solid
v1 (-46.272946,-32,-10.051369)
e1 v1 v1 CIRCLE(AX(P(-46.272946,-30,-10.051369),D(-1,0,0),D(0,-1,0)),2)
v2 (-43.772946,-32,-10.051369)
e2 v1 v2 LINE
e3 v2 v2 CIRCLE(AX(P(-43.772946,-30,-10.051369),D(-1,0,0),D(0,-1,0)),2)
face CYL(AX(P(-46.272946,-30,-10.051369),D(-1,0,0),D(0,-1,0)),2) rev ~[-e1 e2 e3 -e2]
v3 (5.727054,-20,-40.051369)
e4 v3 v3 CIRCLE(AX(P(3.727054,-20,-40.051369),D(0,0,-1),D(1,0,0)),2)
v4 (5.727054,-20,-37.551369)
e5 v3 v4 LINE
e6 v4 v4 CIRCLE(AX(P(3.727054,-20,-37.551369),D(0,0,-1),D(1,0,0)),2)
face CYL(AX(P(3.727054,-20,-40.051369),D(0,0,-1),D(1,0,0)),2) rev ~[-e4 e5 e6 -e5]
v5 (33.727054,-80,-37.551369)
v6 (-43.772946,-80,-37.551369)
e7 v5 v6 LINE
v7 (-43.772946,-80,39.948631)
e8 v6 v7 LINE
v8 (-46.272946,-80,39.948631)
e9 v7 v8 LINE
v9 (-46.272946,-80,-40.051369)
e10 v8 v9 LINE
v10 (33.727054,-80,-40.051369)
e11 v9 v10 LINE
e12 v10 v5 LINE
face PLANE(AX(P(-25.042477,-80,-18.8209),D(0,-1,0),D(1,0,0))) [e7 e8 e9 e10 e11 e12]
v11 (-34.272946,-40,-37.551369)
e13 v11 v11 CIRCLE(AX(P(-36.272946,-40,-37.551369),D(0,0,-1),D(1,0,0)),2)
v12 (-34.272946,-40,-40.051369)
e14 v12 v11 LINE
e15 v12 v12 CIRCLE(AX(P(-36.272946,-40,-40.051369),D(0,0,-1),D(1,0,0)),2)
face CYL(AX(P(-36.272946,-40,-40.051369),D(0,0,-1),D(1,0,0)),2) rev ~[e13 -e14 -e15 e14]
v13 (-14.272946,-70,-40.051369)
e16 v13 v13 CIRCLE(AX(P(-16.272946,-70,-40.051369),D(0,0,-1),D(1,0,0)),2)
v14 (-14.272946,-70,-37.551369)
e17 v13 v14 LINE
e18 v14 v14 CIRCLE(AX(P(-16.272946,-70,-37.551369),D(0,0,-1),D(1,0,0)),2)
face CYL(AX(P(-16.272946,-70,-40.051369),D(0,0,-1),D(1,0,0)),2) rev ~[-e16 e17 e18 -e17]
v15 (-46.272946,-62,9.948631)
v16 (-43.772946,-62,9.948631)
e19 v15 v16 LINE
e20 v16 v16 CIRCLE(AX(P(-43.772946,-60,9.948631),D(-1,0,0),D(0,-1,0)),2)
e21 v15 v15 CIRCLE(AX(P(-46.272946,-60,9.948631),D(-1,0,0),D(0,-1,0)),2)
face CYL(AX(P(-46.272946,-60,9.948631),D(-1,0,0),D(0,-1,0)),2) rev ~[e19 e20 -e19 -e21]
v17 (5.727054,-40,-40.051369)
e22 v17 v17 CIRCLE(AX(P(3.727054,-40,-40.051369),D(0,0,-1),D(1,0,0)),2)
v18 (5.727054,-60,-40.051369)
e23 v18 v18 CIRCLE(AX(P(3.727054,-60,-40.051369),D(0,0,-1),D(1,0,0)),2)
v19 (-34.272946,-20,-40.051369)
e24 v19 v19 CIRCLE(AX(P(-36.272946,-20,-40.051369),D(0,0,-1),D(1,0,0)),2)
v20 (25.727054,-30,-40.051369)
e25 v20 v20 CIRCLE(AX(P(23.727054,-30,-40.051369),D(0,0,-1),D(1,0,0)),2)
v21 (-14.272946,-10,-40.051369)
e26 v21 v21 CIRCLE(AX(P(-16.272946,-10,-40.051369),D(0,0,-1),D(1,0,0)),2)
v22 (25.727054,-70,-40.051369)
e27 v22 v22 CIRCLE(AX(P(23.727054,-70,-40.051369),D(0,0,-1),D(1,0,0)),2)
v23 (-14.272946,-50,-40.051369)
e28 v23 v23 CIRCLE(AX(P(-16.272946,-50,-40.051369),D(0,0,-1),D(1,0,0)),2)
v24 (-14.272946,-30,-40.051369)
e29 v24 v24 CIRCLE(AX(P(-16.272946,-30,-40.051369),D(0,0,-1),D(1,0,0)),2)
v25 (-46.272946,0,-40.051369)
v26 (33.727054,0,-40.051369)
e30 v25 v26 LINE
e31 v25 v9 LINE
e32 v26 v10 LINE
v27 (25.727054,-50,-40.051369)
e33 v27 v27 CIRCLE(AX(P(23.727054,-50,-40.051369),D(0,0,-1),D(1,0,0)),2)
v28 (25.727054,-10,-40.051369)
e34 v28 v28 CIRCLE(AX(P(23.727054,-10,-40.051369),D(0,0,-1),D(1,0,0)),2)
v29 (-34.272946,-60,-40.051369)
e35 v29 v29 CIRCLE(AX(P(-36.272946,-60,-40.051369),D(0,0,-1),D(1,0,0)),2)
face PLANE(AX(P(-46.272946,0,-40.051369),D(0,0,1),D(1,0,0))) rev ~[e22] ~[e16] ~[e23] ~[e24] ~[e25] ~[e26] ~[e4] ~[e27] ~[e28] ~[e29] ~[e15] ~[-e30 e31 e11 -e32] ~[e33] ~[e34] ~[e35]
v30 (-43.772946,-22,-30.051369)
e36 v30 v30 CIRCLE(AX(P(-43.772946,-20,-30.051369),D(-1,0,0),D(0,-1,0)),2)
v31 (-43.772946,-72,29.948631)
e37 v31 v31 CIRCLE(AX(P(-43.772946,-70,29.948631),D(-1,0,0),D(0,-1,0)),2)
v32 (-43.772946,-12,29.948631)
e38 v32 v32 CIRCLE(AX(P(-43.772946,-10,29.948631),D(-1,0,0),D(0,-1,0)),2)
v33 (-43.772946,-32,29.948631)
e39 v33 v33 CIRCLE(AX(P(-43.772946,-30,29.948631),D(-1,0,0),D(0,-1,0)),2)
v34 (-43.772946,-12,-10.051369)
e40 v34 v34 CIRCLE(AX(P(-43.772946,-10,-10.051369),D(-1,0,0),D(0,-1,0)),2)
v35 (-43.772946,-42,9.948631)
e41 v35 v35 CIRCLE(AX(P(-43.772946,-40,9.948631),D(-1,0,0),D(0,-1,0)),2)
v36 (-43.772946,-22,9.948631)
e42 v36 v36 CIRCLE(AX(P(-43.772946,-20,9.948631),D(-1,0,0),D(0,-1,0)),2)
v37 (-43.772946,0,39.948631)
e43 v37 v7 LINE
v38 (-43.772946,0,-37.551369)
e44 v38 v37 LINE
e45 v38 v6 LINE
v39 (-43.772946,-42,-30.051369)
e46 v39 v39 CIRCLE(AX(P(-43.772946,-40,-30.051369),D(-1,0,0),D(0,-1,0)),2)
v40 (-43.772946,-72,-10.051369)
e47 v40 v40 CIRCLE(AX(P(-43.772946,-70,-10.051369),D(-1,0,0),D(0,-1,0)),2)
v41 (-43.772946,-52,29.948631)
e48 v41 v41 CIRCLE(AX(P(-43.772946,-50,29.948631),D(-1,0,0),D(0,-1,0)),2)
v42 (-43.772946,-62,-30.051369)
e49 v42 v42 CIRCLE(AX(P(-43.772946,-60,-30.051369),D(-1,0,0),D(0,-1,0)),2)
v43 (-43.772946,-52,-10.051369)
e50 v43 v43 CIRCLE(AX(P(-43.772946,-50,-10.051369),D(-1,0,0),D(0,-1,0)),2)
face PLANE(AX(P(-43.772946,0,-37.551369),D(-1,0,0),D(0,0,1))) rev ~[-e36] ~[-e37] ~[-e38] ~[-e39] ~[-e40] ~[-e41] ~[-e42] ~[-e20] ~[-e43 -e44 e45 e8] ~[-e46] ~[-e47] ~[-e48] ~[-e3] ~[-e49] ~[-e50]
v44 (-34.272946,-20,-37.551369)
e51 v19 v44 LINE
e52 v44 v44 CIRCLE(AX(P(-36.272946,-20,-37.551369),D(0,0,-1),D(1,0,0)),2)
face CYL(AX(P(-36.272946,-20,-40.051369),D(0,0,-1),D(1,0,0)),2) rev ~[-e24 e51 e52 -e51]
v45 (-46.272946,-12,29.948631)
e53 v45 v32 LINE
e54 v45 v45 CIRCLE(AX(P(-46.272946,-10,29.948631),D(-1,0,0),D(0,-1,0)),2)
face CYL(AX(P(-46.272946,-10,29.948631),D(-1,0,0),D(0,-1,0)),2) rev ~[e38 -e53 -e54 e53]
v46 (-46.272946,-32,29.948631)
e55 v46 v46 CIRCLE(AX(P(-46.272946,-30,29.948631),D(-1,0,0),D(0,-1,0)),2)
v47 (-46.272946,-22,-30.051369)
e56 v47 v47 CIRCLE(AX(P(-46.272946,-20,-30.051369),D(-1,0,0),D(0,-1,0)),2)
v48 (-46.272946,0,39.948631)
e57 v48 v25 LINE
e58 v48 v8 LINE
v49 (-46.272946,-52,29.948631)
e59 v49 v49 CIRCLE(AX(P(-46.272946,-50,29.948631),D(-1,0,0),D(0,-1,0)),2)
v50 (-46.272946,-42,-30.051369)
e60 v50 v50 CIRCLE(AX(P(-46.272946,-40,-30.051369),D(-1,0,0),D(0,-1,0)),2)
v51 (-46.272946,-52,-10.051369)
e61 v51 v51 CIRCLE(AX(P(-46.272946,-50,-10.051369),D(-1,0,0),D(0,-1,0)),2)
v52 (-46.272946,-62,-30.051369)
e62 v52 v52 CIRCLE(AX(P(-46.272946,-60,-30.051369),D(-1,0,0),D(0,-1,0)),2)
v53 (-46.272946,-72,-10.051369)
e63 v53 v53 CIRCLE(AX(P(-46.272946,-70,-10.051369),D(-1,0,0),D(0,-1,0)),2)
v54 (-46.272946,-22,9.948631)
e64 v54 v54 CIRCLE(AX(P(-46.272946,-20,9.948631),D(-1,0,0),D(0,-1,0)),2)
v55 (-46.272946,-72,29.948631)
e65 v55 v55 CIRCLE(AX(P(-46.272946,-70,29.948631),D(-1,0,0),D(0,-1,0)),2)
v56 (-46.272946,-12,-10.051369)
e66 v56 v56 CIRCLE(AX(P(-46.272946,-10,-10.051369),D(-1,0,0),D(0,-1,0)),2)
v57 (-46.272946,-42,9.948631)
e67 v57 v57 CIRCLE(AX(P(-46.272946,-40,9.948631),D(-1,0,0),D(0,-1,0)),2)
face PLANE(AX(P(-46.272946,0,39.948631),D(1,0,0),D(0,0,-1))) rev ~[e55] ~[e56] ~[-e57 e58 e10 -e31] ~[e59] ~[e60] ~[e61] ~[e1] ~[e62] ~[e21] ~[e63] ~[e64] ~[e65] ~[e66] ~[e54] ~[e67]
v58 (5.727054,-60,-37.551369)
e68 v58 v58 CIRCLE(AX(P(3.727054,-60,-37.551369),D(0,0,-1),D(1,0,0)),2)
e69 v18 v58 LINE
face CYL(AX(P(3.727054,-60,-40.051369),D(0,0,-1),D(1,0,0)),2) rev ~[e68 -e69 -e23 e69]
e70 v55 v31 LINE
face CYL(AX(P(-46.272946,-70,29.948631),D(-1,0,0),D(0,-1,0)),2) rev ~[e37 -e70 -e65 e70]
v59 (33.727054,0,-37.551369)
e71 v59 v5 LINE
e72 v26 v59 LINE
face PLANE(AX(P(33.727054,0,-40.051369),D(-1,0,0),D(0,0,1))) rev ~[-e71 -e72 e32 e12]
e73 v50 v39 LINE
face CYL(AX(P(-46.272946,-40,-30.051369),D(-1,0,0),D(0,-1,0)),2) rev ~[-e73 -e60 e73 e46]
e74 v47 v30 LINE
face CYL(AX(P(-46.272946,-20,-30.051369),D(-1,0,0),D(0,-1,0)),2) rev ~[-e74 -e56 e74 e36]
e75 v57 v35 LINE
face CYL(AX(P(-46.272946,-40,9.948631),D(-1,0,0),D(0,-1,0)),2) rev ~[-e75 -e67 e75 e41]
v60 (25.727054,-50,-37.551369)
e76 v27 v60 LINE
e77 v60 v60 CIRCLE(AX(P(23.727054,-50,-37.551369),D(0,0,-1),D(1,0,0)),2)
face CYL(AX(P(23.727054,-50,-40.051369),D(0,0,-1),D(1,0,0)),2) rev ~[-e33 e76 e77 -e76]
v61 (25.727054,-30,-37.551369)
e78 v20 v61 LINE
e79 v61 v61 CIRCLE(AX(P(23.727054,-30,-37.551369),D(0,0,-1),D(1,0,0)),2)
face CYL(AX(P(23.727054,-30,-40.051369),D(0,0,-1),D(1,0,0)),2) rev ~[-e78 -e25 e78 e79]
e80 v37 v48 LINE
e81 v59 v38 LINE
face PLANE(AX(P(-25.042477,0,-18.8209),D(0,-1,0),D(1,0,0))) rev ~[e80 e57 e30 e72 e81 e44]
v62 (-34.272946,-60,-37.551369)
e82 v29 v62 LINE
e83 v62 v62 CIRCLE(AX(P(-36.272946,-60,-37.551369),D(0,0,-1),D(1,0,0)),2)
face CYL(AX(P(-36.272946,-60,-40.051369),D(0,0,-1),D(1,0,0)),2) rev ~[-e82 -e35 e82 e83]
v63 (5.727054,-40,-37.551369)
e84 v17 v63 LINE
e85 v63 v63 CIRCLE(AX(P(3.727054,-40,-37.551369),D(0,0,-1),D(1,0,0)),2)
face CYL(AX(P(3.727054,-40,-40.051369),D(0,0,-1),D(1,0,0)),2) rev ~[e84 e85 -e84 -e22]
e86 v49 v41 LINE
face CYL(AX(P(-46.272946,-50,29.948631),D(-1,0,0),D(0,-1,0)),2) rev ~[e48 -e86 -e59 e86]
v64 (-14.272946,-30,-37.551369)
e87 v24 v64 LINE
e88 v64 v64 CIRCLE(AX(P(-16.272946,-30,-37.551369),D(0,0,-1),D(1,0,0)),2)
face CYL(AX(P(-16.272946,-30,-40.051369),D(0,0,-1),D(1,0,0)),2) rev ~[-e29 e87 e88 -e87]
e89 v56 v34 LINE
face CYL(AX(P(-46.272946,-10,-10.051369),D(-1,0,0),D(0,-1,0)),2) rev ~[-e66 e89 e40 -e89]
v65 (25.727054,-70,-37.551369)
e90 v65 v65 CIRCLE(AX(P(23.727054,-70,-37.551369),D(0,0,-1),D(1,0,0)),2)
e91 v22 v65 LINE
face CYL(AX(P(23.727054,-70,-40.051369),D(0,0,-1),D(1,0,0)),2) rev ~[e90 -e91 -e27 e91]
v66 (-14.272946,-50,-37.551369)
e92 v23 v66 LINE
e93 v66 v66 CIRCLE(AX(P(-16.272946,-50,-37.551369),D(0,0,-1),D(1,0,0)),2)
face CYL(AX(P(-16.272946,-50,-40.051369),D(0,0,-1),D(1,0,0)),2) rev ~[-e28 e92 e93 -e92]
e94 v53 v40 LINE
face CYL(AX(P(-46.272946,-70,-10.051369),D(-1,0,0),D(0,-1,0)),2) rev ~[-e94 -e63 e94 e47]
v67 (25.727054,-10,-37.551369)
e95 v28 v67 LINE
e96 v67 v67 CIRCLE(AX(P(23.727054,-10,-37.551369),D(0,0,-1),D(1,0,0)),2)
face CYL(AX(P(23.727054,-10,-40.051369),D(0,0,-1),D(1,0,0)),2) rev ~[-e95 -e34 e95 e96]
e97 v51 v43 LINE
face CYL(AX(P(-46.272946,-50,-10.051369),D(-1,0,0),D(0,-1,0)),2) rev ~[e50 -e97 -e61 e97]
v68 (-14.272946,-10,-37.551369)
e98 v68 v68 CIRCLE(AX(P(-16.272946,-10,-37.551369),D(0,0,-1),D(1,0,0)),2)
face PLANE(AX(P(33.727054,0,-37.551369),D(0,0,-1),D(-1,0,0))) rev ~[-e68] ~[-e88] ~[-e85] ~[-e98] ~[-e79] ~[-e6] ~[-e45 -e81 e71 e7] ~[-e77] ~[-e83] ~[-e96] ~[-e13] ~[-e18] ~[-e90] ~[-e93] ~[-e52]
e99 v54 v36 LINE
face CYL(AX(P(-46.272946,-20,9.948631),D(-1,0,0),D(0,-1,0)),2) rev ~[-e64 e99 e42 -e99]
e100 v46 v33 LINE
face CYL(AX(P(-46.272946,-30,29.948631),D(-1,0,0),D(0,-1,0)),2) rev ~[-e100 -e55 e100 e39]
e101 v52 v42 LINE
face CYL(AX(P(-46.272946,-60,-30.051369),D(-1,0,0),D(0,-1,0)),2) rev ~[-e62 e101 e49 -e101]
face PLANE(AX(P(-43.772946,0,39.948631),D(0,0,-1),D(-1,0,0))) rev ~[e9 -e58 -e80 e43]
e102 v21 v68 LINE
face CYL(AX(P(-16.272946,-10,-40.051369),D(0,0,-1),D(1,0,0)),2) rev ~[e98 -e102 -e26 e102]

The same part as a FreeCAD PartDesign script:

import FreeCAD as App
import Part
import Sketcher

V = App.Vector

doc = App.newDocument("Part")
body = doc.addObject("PartDesign::Body", "Body")

# Sketch on XZ plane
sketch1 = doc.addObject("Sketcher::SketchObject", "Sketch")
body.addObject(sketch1)
sketch1.AttachmentSupport = (doc.XZ_Plane, [""])
sketch1.MapMode = "FlatFace"
sketch1.addGeometry([
    Part.LineSegment(V(-43.8, 39.9, 0), V(-46.3, 39.9, 0)),  # 0
    Part.LineSegment(V(-46.3, 39.9, 0), V(-46.3, -40.1, 0)),  # 1
    Part.LineSegment(V(-46.3, -40.1, 0), V(33.7, -40.1, 0)),  # 2
    Part.LineSegment(V(33.7, -40.1, 0), V(33.7, -37.6, 0)),  # 3
    Part.LineSegment(V(33.7, -37.6, 0), V(-43.8, -37.6, 0)),  # 4
    Part.LineSegment(V(-43.8, -37.6, 0), V(-43.8, 39.9, 0)),  # 5
], False)
sketch1.addConstraint([
    Sketcher.Constraint("Coincident", 0, 2, 1, 1),
    Sketcher.Constraint("Coincident", 1, 2, 2, 1),
    Sketcher.Constraint("Coincident", 2, 2, 3, 1),
    Sketcher.Constraint("Coincident", 3, 2, 4, 1),
    Sketcher.Constraint("Coincident", 4, 2, 5, 1),
    Sketcher.Constraint("Coincident", 5, 2, 0, 1),
    Sketcher.Constraint("Horizontal", 0),
    Sketcher.Constraint("Vertical", 1),
    Sketcher.Constraint("Horizontal", 2),
    Sketcher.Constraint("Vertical", 3),
    Sketcher.Constraint("Horizontal", 4),
    Sketcher.Constraint("Vertical", 5),
    Sketcher.Constraint("Equal", 2, 1),
    Sketcher.Constraint("Equal", 0, 3),
    Sketcher.Constraint("DistanceX", 2, 1, 2, 2, 80.0),
    Sketcher.Constraint("DistanceX", 0, 2, 0, 1, 2.5),
    Sketcher.Constraint("DistanceY", -1, 1, 0, 2, 39.948631),
    Sketcher.Constraint("DistanceX", 0, 2, -1, 1, 46.272946),
])
pad1 = doc.addObject("PartDesign::Pad", "Pad")
body.addObject(pad1)
pad1.Profile = sketch1
pad1.Length = 80

# Sketch on YZ plane
sketch2 = doc.addObject("Sketcher::SketchObject", "Sketch001")
body.addObject(sketch2)
sketch2.AttachmentSupport = (doc.YZ_Plane, [""])
sketch2.MapMode = "FlatFace"
sketch2.AttachmentOffset = App.Placement(V(0, 0, -46.272946), App.Rotation())
sketch2.addGeometry([
    Part.Circle(V(-10, 29.9, 0), V(0, 0, 1), 2),  # 0
    Part.Circle(V(-10, -10.1, 0), V(0, 0, 1), 2),  # 1
    Part.Circle(V(-30, 29.9, 0), V(0, 0, 1), 2),  # 2
    Part.Circle(V(-30, -10.1, 0), V(0, 0, 1), 2),  # 3
    Part.Circle(V(-50, 29.9, 0), V(0, 0, 1), 2),  # 4
    Part.Circle(V(-50, -10.1, 0), V(0, 0, 1), 2),  # 5
    Part.Circle(V(-70, 29.9, 0), V(0, 0, 1), 2),  # 6
    Part.Circle(V(-70, -10.1, 0), V(0, 0, 1), 2),  # 7
    Part.Circle(V(-20, 9.9, 0), V(0, 0, 1), 2),  # 8
    Part.Circle(V(-20, -30.1, 0), V(0, 0, 1), 2),  # 9
    Part.Circle(V(-40, 9.9, 0), V(0, 0, 1), 2),  # 10
    Part.Circle(V(-40, -30.1, 0), V(0, 0, 1), 2),  # 11
    Part.Circle(V(-60, 9.9, 0), V(0, 0, 1), 2),  # 12
    Part.Circle(V(-60, -30.1, 0), V(0, 0, 1), 2),  # 13
], False)
sketch2.addConstraint([
    Sketcher.Constraint("Equal", 0, 1),
    Sketcher.Constraint("Equal", 1, 2),
    Sketcher.Constraint("Equal", 2, 3),
    Sketcher.Constraint("Equal", 3, 4),
    Sketcher.Constraint("Equal", 4, 5),
    Sketcher.Constraint("Equal", 5, 6),
    Sketcher.Constraint("Equal", 6, 7),
    Sketcher.Constraint("Equal", 7, 8),
    Sketcher.Constraint("Equal", 8, 9),
    Sketcher.Constraint("Equal", 9, 10),
    Sketcher.Constraint("Equal", 10, 11),
    Sketcher.Constraint("Equal", 11, 12),
    Sketcher.Constraint("Equal", 12, 13),
    Sketcher.Constraint("Horizontal", 0, 3, 2, 3),
    Sketcher.Constraint("Horizontal", 1, 3, 3, 3),
    Sketcher.Constraint("Horizontal", 2, 3, 4, 3),
    Sketcher.Constraint("Horizontal", 3, 3, 5, 3),
    Sketcher.Constraint("Horizontal", 4, 3, 6, 3),
    Sketcher.Constraint("Horizontal", 5, 3, 7, 3),
    Sketcher.Constraint("Horizontal", 8, 3, 10, 3),
    Sketcher.Constraint("Horizontal", 9, 3, 11, 3),
    Sketcher.Constraint("Horizontal", 10, 3, 12, 3),
    Sketcher.Constraint("Horizontal", 11, 3, 13, 3),
    Sketcher.Constraint("Vertical", 0, 3, 1, 3),
    Sketcher.Constraint("Vertical", 2, 3, 3, 3),
    Sketcher.Constraint("Vertical", 4, 3, 5, 3),
    Sketcher.Constraint("Vertical", 6, 3, 7, 3),
    Sketcher.Constraint("Vertical", 8, 3, 9, 3),
    Sketcher.Constraint("Vertical", 10, 3, 11, 3),
    Sketcher.Constraint("Vertical", 12, 3, 13, 3),
    Sketcher.Constraint("Diameter", 0, 4.0),
    Sketcher.Constraint("DistanceX", 0, 3, -1, 1, 10.0),
    Sketcher.Constraint("DistanceX", 2, 3, -1, 1, 30.0),
    Sketcher.Constraint("DistanceX", 4, 3, -1, 1, 50.0),
    Sketcher.Constraint("DistanceX", 6, 3, -1, 1, 70.0),
    Sketcher.Constraint("DistanceX", 8, 3, -1, 1, 20.0),
    Sketcher.Constraint("DistanceX", 10, 3, -1, 1, 40.0),
    Sketcher.Constraint("DistanceX", 12, 3, -1, 1, 60.0),
    Sketcher.Constraint("DistanceY", 1, 3, 0, 3, 40.0),
    Sketcher.Constraint("DistanceY", 8, 3, 0, 3, 20.0),
    Sketcher.Constraint("DistanceY", 9, 3, 1, 3, 20.0),
    Sketcher.Constraint("DistanceY", -1, 1, 0, 3, 29.948631),
])
pocket1 = doc.addObject("PartDesign::Pocket", "Pocket")
body.addObject(pocket1)
pocket1.Profile = sketch2
pocket1.Length = 25
pocket1.Reversed = True

# Sketch on XY plane
sketch3 = doc.addObject("Sketcher::SketchObject", "Sketch002")
body.addObject(sketch3)
sketch3.AttachmentSupport = (doc.XY_Plane, [""])
sketch3.MapMode = "FlatFace"
sketch3.AttachmentOffset = App.Placement(V(0, 0, -40.051369), App.Rotation())
sketch3.addGeometry([
    Part.Circle(V(23.7, -70, 0), V(0, 0, 1), 2),  # 0
    Part.Circle(V(23.7, -50, 0), V(0, 0, 1), 2),  # 1
    Part.Circle(V(23.7, -30, 0), V(0, 0, 1), 2),  # 2
    Part.Circle(V(23.7, -10, 0), V(0, 0, 1), 2),  # 3
    Part.Circle(V(-16.3, -70, 0), V(0, 0, 1), 2),  # 4
    Part.Circle(V(-16.3, -50, 0), V(0, 0, 1), 2),  # 5
    Part.Circle(V(-16.3, -30, 0), V(0, 0, 1), 2),  # 6
    Part.Circle(V(-16.3, -10, 0), V(0, 0, 1), 2),  # 7
    Part.Circle(V(3.7, -60, 0), V(0, 0, 1), 2),  # 8
    Part.Circle(V(3.7, -40, 0), V(0, 0, 1), 2),  # 9
    Part.Circle(V(3.7, -20, 0), V(0, 0, 1), 2),  # 10
    Part.Circle(V(-36.3, -60, 0), V(0, 0, 1), 2),  # 11
    Part.Circle(V(-36.3, -40, 0), V(0, 0, 1), 2),  # 12
    Part.Circle(V(-36.3, -20, 0), V(0, 0, 1), 2),  # 13
], False)
sketch3.addConstraint([
    Sketcher.Constraint("Equal", 0, 1),
    Sketcher.Constraint("Equal", 1, 2),
    Sketcher.Constraint("Equal", 2, 3),
    Sketcher.Constraint("Equal", 3, 4),
    Sketcher.Constraint("Equal", 4, 5),
    Sketcher.Constraint("Equal", 5, 6),
    Sketcher.Constraint("Equal", 6, 7),
    Sketcher.Constraint("Equal", 7, 8),
    Sketcher.Constraint("Equal", 8, 9),
    Sketcher.Constraint("Equal", 9, 10),
    Sketcher.Constraint("Equal", 10, 11),
    Sketcher.Constraint("Equal", 11, 12),
    Sketcher.Constraint("Equal", 12, 13),
    Sketcher.Constraint("Horizontal", 0, 3, 4, 3),
    Sketcher.Constraint("Horizontal", 1, 3, 5, 3),
    Sketcher.Constraint("Horizontal", 2, 3, 6, 3),
    Sketcher.Constraint("Horizontal", 3, 3, 7, 3),
    Sketcher.Constraint("Horizontal", 8, 3, 11, 3),
    Sketcher.Constraint("Horizontal", 9, 3, 12, 3),
    Sketcher.Constraint("Horizontal", 10, 3, 13, 3),
    Sketcher.Constraint("Vertical", 0, 3, 1, 3),
    Sketcher.Constraint("Vertical", 1, 3, 2, 3),
    Sketcher.Constraint("Vertical", 2, 3, 3, 3),
    Sketcher.Constraint("Vertical", 4, 3, 5, 3),
    Sketcher.Constraint("Vertical", 5, 3, 6, 3),
    Sketcher.Constraint("Vertical", 6, 3, 7, 3),
    Sketcher.Constraint("Vertical", 8, 3, 9, 3),
    Sketcher.Constraint("Vertical", 9, 3, 10, 3),
    Sketcher.Constraint("Vertical", 11, 3, 12, 3),
    Sketcher.Constraint("Vertical", 12, 3, 13, 3),
    Sketcher.Constraint("Diameter", 0, 4.0),
    Sketcher.Constraint("DistanceY", 0, 3, -1, 1, 70.0),
    Sketcher.Constraint("DistanceY", 1, 3, -1, 1, 50.0),
    Sketcher.Constraint("DistanceY", 2, 3, -1, 1, 30.0),
    Sketcher.Constraint("DistanceY", 3, 3, -1, 1, 10.0),
    Sketcher.Constraint("DistanceY", 8, 3, -1, 1, 60.0),
    Sketcher.Constraint("DistanceY", 9, 3, -1, 1, 40.0),
    Sketcher.Constraint("DistanceY", 10, 3, -1, 1, 20.0),
    Sketcher.Constraint("DistanceX", 4, 3, 0, 3, 40.0),
    Sketcher.Constraint("DistanceX", 8, 3, 0, 3, 20.0),
    Sketcher.Constraint("DistanceX", 11, 3, 4, 3, 20.0),
    Sketcher.Constraint("DistanceX", -1, 1, 0, 3, 23.727054),
])
pocket2 = doc.addObject("PartDesign::Pocket", "Pocket001")
body.addObject(pocket2)
pocket2.Profile = sketch3
pocket2.Length = 25
pocket2.Reversed = True

doc.recompute()
